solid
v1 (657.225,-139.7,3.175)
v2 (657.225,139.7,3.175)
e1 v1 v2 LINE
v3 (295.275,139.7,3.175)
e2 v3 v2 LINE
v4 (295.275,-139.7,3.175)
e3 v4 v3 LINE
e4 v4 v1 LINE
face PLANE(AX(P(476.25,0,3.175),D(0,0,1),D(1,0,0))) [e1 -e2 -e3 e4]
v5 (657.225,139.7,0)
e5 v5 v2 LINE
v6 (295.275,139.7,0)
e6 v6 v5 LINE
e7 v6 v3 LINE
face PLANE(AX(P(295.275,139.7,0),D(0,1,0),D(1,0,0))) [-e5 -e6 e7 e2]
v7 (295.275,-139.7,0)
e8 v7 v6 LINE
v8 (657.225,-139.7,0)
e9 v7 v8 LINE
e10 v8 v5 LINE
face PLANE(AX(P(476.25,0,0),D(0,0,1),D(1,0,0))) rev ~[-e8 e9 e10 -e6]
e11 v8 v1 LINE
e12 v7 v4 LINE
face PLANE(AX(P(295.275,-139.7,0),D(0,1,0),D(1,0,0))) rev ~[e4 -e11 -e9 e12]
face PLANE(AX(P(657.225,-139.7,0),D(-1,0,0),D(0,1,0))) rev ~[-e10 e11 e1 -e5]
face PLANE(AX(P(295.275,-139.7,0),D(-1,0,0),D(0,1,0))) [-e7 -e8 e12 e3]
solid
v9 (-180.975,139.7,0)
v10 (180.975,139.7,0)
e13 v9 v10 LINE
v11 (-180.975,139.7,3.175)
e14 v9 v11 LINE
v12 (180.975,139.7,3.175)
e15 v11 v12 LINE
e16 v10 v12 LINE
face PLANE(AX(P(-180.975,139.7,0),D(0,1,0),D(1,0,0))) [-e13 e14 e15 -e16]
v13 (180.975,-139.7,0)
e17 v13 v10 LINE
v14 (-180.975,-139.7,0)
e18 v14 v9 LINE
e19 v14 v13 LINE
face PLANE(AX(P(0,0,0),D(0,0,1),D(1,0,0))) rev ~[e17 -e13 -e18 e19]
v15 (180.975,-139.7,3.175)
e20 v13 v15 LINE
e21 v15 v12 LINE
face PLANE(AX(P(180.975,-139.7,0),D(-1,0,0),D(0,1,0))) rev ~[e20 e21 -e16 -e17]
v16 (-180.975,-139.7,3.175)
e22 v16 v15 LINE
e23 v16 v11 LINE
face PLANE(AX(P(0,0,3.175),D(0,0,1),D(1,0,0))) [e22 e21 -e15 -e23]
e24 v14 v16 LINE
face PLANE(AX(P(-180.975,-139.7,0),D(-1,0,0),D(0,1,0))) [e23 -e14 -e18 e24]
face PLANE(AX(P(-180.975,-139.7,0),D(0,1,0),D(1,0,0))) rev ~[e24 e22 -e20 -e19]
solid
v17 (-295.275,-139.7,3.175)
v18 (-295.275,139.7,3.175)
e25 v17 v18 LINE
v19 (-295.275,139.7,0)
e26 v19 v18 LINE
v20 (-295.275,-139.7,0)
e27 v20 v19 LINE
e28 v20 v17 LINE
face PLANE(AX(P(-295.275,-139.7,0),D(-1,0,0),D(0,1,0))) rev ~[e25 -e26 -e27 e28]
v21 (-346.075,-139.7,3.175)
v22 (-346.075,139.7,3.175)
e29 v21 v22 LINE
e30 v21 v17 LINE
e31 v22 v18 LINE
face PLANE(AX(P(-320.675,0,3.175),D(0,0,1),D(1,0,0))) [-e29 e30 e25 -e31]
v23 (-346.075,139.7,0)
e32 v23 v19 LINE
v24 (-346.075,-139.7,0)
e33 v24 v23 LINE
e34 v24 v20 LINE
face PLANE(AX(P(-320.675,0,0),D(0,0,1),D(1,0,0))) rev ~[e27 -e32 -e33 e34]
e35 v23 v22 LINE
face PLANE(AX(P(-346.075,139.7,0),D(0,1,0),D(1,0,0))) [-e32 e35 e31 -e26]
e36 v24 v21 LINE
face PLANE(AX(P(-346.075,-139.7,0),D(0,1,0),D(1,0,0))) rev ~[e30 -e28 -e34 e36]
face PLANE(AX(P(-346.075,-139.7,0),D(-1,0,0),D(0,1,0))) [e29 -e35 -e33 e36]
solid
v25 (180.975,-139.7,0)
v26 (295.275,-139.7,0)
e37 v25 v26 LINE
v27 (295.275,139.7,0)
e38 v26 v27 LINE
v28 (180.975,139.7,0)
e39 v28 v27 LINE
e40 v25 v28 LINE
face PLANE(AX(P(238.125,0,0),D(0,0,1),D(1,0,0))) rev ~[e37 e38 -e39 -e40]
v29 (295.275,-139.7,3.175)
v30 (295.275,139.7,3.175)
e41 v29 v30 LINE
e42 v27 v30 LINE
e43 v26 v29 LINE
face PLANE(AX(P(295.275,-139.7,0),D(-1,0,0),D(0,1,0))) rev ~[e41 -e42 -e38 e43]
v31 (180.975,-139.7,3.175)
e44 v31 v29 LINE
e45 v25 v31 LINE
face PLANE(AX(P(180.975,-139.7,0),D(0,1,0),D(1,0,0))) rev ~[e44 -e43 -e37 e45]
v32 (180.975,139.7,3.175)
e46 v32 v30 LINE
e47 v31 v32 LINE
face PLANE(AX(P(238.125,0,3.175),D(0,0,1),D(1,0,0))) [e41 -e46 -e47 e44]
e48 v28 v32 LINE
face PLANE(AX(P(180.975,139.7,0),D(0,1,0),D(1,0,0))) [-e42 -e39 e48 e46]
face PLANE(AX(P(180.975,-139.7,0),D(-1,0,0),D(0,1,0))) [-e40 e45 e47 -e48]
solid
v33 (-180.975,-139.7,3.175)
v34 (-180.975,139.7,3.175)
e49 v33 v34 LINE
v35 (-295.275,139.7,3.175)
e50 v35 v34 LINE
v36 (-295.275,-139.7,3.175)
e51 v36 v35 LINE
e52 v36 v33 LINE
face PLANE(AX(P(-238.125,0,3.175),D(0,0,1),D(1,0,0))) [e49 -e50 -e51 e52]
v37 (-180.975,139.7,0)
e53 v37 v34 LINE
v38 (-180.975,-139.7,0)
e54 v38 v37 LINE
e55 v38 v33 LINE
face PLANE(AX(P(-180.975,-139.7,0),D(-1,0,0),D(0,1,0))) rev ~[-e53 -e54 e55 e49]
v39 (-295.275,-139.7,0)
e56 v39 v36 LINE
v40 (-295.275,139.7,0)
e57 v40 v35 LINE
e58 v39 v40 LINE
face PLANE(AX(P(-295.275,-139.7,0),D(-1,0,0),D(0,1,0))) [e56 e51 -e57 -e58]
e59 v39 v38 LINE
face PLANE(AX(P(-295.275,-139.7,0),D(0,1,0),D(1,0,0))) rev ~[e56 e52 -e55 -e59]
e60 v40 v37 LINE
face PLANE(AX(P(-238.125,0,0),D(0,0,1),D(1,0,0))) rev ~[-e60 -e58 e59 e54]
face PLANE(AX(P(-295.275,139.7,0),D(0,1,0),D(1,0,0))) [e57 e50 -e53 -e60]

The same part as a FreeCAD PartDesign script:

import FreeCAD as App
import Part
import Sketcher
from FreeCAD import Vector
Q = App.Units.Quantity

doc = App.newDocument("Part")
params = doc.addObject("Spreadsheet::Sheet", "Params")
for row, (alias, value) in enumerate([
    ("sketch1_height", "11 in"),
    ("sketch1_width", "14.25 in"),
    ("pad1_length", "0.125 in"),
    ("sketch2_height", "11 in"),
    ("sketch2_width", "4.5 in"),
    ("pad2_length", "0.125 in"),
    ("sketch3_height", "11 in"),
    ("sketch3_width", "4.5 in"),
    ("pad3_length", "0.125 in"),
    ("sketch4_height", "11 in"),
    ("sketch4_width", "14.25 in"),
    ("pad4_length", "0.125 in"),
    ("sketch5_width", "2 in"),
    ("sketch5_height", "11 in"),
    ("pad5_length", "0.125 in"),
], start=1):
    params.set(f"A{row}", alias)
    params.set(f"B{row}", "=" + value)
    params.setAlias(f"B{row}", alias)

body = doc.addObject("PartDesign::Body", "Body")

sketch1 = body.newObject("Sketcher::SketchObject", "Sketch")
sketch1.AttachmentSupport = (doc.getObject("XY_Plane"), [""])
sketch1.MapMode = "FlatFace"
sketch1.addGeometry([
    Part.LineSegment(Vector(-181, 140, 0), Vector(-181, -140, 0)),
    Part.LineSegment(Vector(-181, -140, 0), Vector(181, -140, 0)),
    Part.LineSegment(Vector(181, -140, 0), Vector(181, 140, 0)),
    Part.LineSegment(Vector(181, 140, 0), Vector(-181, 140, 0)),
], False)
sketch1.addConstraint([
    Sketcher.Constraint("Coincident", 0, 2, 1, 1),
    Sketcher.Constraint("Coincident", 1, 2, 2, 1),
    Sketcher.Constraint("Coincident", 2, 2, 3, 1),
    Sketcher.Constraint("Coincident", 3, 2, 0, 1),
    Sketcher.Constraint("Vertical", 0),
    Sketcher.Constraint("Horizontal", 1),
    Sketcher.Constraint("Vertical", 2),
    Sketcher.Constraint("Horizontal", 3),
    Sketcher.Constraint("Symmetric", 0, 2, 2, 2, -1, 1),
    Sketcher.Constraint("DistanceY", 0, 2, 0, 1, Q("11 in")),
    Sketcher.Constraint("DistanceX", 1, 1, 1, 2, Q("14.25 in")),
])
sketch1.setExpression("Constraints[9]", "Params.sketch1_height")
sketch1.setExpression("Constraints[10]", "Params.sketch1_width")
pad1 = body.newObject("PartDesign::Pad", "Pad")
pad1.Profile = sketch1
pad1.setExpression("Length", "Params.pad1_length")
body2 = doc.addObject("PartDesign::Body", "Body001")

sketch2 = body2.newObject("Sketcher::SketchObject", "Sketch001")
sketch2.AttachmentSupport = (doc.getObject("XY_Plane001"), [""])
sketch2.MapMode = "FlatFace"
sketch2.addGeometry([
    Part.LineSegment(Vector(-295, 140, 0), Vector(-295, -140, 0)),
    Part.LineSegment(Vector(-295, -140, 0), Vector(-181, -140, 0)),
    Part.LineSegment(Vector(-181, -140, 0), Vector(-181, 140, 0)),
    Part.LineSegment(Vector(-181, 140, 0), Vector(-295, 140, 0)),
], False)
sketch2.addConstraint([
    Sketcher.Constraint("Coincident", 0, 2, 1, 1),
    Sketcher.Constraint("Coincident", 1, 2, 2, 1),
    Sketcher.Constraint("Coincident", 2, 2, 3, 1),
    Sketcher.Constraint("Coincident", 3, 2, 0, 1),
    Sketcher.Constraint("Vertical", 0),
    Sketcher.Constraint("Horizontal", 1),
    Sketcher.Constraint("Vertical", 2),
    Sketcher.Constraint("Horizontal", 3),
    Sketcher.Constraint("DistanceY", 0, 2, 0, 1, Q("11 in")),
    Sketcher.Constraint("DistanceX", 1, 1, 1, 2, Q("4.5 in")),
    Sketcher.Constraint("DistanceY", 0, 2, -1, 1, Q("5.5 in")),
    Sketcher.Constraint("DistanceX", 0, 2, -1, 1, Q("11.625 in")),
])
sketch2.setExpression("Constraints[8]", "Params.sketch2_height")
sketch2.setExpression("Constraints[9]", "Params.sketch2_width")
pad2 = body2.newObject("PartDesign::Pad", "Pad001")
pad2.Profile = sketch2
pad2.setExpression("Length", "Params.pad2_length")
body3 = doc.addObject("PartDesign::Body", "Body002")

sketch3 = body3.newObject("Sketcher::SketchObject", "Sketch002")
sketch3.AttachmentSupport = (doc.getObject("XY_Plane002"), [""])
sketch3.MapMode = "FlatFace"
sketch3.addGeometry([
    Part.LineSegment(Vector(181, 140, 0), Vector(181, -140, 0)),
    Part.LineSegment(Vector(181, -140, 0), Vector(295, -140, 0)),
    Part.LineSegment(Vector(295, -140, 0), Vector(295, 140, 0)),
    Part.LineSegment(Vector(295, 140, 0), Vector(181, 140, 0)),
], False)
sketch3.addConstraint([
    Sketcher.Constraint("Coincident", 0, 2, 1, 1),
    Sketcher.Constraint("Coincident", 1, 2, 2, 1),
    Sketcher.Constraint("Coincident", 2, 2, 3, 1),
    Sketcher.Constraint("Coincident", 3, 2, 0, 1),
    Sketcher.Constraint("Vertical", 0),
    Sketcher.Constraint("Horizontal", 1),
    Sketcher.Constraint("Vertical", 2),
    Sketcher.Constraint("Horizontal", 3),
    Sketcher.Constraint("DistanceY", 0, 2, 0, 1, Q("11 in")),
    Sketcher.Constraint("DistanceX", 1, 1, 1, 2, Q("4.5 in")),
    Sketcher.Constraint("DistanceY", 0, 2, -1, 1, Q("5.5 in")),
    Sketcher.Constraint("DistanceX", -1, 1, 0, 2, Q("7.125 in")),
])
sketch3.setExpression("Constraints[8]", "Params.sketch3_height")
sketch3.setExpression("Constraints[9]", "Params.sketch3_width")
pad3 = body3.newObject("PartDesign::Pad", "Pad002")
pad3.Profile = sketch3
pad3.setExpression("Length", "Params.pad3_length")
body4 = doc.addObject("PartDesign::Body", "Body003")

sketch4 = body4.newObject("Sketcher::SketchObject", "Sketch003")
sketch4.AttachmentSupport = (doc.getObject("XY_Plane003"), [""])
sketch4.MapMode = "FlatFace"
sketch4.addGeometry([
    Part.LineSegment(Vector(295, 140, 0), Vector(295, -140, 0)),
    Part.LineSegment(Vector(295, -140, 0), Vector(657, -140, 0)),
    Part.LineSegment(Vector(657, -140, 0), Vector(657, 140, 0)),
    Part.LineSegment(Vector(657, 140, 0), Vector(295, 140, 0)),
], False)
sketch4.addConstraint([
    Sketcher.Constraint("Coincident", 0, 2, 1, 1),
    Sketcher.Constraint("Coincident", 1, 2, 2, 1),
    Sketcher.Constraint("Coincident", 2, 2, 3, 1),
    Sketcher.Constraint("Coincident", 3, 2, 0, 1),
    Sketcher.Constraint("Vertical", 0),
    Sketcher.Constraint("Horizontal", 1),
    Sketcher.Constraint("Vertical", 2),
    Sketcher.Constraint("Horizontal", 3),
    Sketcher.Constraint("DistanceY", 0, 2, 0, 1, Q("11 in")),
    Sketcher.Constraint("DistanceX", 1, 1, 1, 2, Q("14.25 in")),
    Sketcher.Constraint("DistanceY", 0, 2, -1, 1, Q("5.5 in")),
    Sketcher.Constraint("DistanceX", -1, 1, 0, 2, Q("11.625 in")),
])
sketch4.setExpression("Constraints[8]", "Params.sketch4_height")
sketch4.setExpression("Constraints[9]", "Params.sketch4_width")
pad4 = body4.newObject("PartDesign::Pad", "Pad003")
pad4.Profile = sketch4
pad4.setExpression("Length", "Params.pad4_length")
body5 = doc.addObject("PartDesign::Body", "Body004")

sketch5 = body5.newObject("Sketcher::SketchObject", "Sketch004")
sketch5.AttachmentSupport = (doc.getObject("XY_Plane004"), [""])
sketch5.MapMode = "FlatFace"
sketch5.addGeometry([
    Part.LineSegment(Vector(-346, 140, 0), Vector(-346, -140, 0)),
    Part.LineSegment(Vector(-346, -140, 0), Vector(-295, -140, 0)),
    Part.LineSegment(Vector(-295, -140, 0), Vector(-295, 140, 0)),
    Part.LineSegment(Vector(-295, 140, 0), Vector(-346, 140, 0)),
], False)
sketch5.addConstraint([
    Sketcher.Constraint("Coincident", 0, 2, 1, 1),
    Sketcher.Constraint("Coincident", 1, 2, 2, 1),
    Sketcher.Constraint("Coincident", 2, 2, 3, 1),
    Sketcher.Constraint("Coincident", 3, 2, 0, 1),
    Sketcher.Constraint("Vertical", 0),
    Sketcher.Constraint("Horizontal", 1),
    Sketcher.Constraint("Vertical", 2),
    Sketcher.Constraint("Horizontal", 3),
    Sketcher.Constraint("DistanceX", 1, 1, 1, 2, Q("2 in")),
    Sketcher.Constraint("DistanceY", 0, 2, 0, 1, Q("11 in")),
    Sketcher.Constraint("DistanceY", 0, 2, -1, 1, Q("5.5 in")),
    Sketcher.Constraint("DistanceX", 0, 2, -1, 1, Q("13.625 in")),
])
sketch5.setExpression("Constraints[8]", "Params.sketch5_width")
sketch5.setExpression("Constraints[9]", "Params.sketch5_height")
pad5 = body5.newObject("PartDesign::Pad", "Pad004")
pad5.Profile = sketch5
pad5.setExpression("Length", "Params.pad5_length")

doc.recompute()
